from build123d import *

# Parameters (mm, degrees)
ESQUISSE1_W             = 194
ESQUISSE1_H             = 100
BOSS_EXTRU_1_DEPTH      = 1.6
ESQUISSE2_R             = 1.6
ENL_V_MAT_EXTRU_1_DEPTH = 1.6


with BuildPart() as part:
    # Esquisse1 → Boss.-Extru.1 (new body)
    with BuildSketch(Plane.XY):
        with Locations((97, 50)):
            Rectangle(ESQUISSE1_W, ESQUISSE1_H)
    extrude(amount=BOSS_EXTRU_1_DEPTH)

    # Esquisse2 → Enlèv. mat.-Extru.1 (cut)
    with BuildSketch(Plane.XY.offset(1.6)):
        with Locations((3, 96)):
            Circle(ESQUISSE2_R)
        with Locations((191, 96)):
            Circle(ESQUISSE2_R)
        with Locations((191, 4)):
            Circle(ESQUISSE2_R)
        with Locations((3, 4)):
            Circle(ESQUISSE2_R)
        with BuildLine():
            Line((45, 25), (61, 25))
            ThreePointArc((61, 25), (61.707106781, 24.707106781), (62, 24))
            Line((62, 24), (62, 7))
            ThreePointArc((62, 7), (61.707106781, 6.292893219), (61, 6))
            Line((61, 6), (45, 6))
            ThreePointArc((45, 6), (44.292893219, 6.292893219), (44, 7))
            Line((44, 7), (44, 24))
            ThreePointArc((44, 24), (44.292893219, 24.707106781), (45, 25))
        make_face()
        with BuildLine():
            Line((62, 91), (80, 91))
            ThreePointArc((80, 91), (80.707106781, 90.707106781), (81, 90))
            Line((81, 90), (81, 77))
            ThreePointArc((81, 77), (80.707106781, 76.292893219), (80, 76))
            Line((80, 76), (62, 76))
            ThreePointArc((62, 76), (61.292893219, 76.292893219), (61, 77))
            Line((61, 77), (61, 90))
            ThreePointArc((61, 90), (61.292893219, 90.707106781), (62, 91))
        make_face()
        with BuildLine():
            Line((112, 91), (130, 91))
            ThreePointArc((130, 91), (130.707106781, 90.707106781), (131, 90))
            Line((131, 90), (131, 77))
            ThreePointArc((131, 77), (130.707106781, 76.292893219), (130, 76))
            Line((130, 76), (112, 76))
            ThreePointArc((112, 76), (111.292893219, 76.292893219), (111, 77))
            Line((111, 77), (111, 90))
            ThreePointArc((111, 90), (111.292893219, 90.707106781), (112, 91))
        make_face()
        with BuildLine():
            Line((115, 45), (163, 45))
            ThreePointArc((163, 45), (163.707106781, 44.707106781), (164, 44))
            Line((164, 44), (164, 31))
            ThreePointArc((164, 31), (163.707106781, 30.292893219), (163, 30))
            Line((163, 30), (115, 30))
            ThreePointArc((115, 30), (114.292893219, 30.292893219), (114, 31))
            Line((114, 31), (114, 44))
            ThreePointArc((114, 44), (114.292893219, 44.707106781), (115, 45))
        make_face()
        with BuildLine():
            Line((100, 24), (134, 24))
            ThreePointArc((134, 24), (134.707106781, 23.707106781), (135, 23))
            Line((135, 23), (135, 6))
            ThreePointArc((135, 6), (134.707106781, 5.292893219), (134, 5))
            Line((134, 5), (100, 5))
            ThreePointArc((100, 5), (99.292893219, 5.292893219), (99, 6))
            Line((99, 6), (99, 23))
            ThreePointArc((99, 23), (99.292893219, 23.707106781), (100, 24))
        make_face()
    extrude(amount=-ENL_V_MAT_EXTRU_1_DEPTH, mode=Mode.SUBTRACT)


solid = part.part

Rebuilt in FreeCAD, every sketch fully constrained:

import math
import FreeCAD as App
import Part
import Sketcher

V = App.Vector

doc = App.newDocument("Part")
body = doc.addObject("PartDesign::Body", "Body")

sketch1 = doc.addObject("Sketcher::SketchObject", "Sketch")
body.addObject(sketch1)
sketch1.AttachmentSupport = (doc.XY_Plane, [""])
sketch1.MapMode = "FlatFace"
sketch1.addGeometry(Part.LineSegment(V(0, 100, 0), V(0, 0, 0)), False)
sketch1.addGeometry(Part.LineSegment(V(0, 0, 0), V(194, 0, 0)), False)
sketch1.addGeometry(Part.LineSegment(V(194, 0, 0), V(194, 100, 0)), False)
sketch1.addGeometry(Part.LineSegment(V(194, 100, 0), V(0, 100, 0)), False)
sketch1.addConstraint(Sketcher.Constraint("Coincident", 0, 2, 1, 1))
sketch1.addConstraint(Sketcher.Constraint("Coincident", 1, 2, 2, 1))
sketch1.addConstraint(Sketcher.Constraint("Coincident", 2, 2, 3, 1))
sketch1.addConstraint(Sketcher.Constraint("Coincident", 3, 2, 0, 1))
sketch1.addConstraint(Sketcher.Constraint("Vertical", 0))
sketch1.addConstraint(Sketcher.Constraint("Horizontal", 1))
sketch1.addConstraint(Sketcher.Constraint("Vertical", 2))
sketch1.addConstraint(Sketcher.Constraint("Horizontal", 3))
sketch1.addConstraint(Sketcher.Constraint("Coincident", 0, 2, -1, 1))
sketch1.addConstraint(Sketcher.Constraint("DistanceX", 1, 1, 1, 2, 194.0))
sketch1.addConstraint(Sketcher.Constraint("DistanceY", 0, 2, 0, 1, 100.0))
pad1 = doc.addObject("PartDesign::Pad", "Pad")
body.addObject(pad1)
pad1.Profile = sketch1
pad1.Length = 1.6

sketch2 = doc.addObject("Sketcher::SketchObject", "Sketch001")
body.addObject(sketch2)
sketch2.AttachmentSupport = (doc.XY_Plane, [""])
sketch2.MapMode = "FlatFace"
sketch2.AttachmentOffset = App.Placement(V(0, 0, 1.6), App.Rotation())
sketch2.addGeometry(Part.Circle(V(3, 96, 0), V(0, 0, 1), 1.6), False)
sketch2.addGeometry(Part.Circle(V(191, 96, 0), V(0, 0, 1), 1.6), False)
sketch2.addGeometry(Part.Circle(V(191, 4, 0), V(0, 0, 1), 1.6), False)
sketch2.addGeometry(Part.Circle(V(3, 4, 0), V(0, 0, 1), 1.6), False)
sketch2.addGeometry(Part.LineSegment(V(61, 25, 0), V(45, 25, 0)), False)
sketch2.addGeometry(Part.ArcOfCircle(Part.Circle(V(45, 24, 0), V(0, 0, 1), 1), math.radians(90), math.radians(180)), False)
sketch2.addGeometry(Part.LineSegment(V(44, 24, 0), V(44, 7, 0)), False)
sketch2.addGeometry(Part.ArcOfCircle(Part.Circle(V(45, 7, 0), V(0, 0, 1), 1), math.radians(-180), math.radians(-90)), False)
sketch2.addGeometry(Part.LineSegment(V(45, 6, 0), V(61, 6, 0)), False)
sketch2.addGeometry(Part.ArcOfCircle(Part.Circle(V(61, 7, 0), V(0, 0, 1), 1), math.radians(-90), math.radians(0)), False)
sketch2.addGeometry(Part.LineSegment(V(62, 7, 0), V(62, 24, 0)), False)
sketch2.addGeometry(Part.ArcOfCircle(Part.Circle(V(61, 24, 0), V(0, 0, 1), 1), math.radians(0), math.radians(90)), False)
sketch2.addGeometry(Part.LineSegment(V(80, 91, 0), V(62, 91, 0)), False)
sketch2.addGeometry(Part.ArcOfCircle(Part.Circle(V(62, 90, 0), V(0, 0, 1), 1), math.radians(90), math.radians(180)), False)
sketch2.addGeometry(Part.LineSegment(V(61, 90, 0), V(61, 77, 0)), False)
sketch2.addGeometry(Part.ArcOfCircle(Part.Circle(V(62, 77, 0), V(0, 0, 1), 1), math.radians(-180), math.radians(-90)), False)
sketch2.addGeometry(Part.LineSegment(V(62, 76, 0), V(80, 76, 0)), False)
sketch2.addGeometry(Part.ArcOfCircle(Part.Circle(V(80, 77, 0), V(0, 0, 1), 1), math.radians(-90), math.radians(0)), False)
sketch2.addGeometry(Part.LineSegment(V(81, 77, 0), V(81, 90, 0)), False)
sketch2.addGeometry(Part.ArcOfCircle(Part.Circle(V(80, 90, 0), V(0, 0, 1), 1), math.radians(0), math.radians(90)), False)
sketch2.addGeometry(Part.LineSegment(V(130, 91, 0), V(112, 91, 0)), False)
sketch2.addGeometry(Part.ArcOfCircle(Part.Circle(V(112, 90, 0), V(0, 0, 1), 1), math.radians(90), math.radians(180)), False)
sketch2.addGeometry(Part.LineSegment(V(111, 90, 0), V(111, 77, 0)), False)
sketch2.addGeometry(Part.ArcOfCircle(Part.Circle(V(112, 77, 0), V(0, 0, 1), 1), math.radians(-180), math.radians(-90)), False)
sketch2.addGeometry(Part.LineSegment(V(112, 76, 0), V(130, 76, 0)), False)
sketch2.addGeometry(Part.ArcOfCircle(Part.Circle(V(130, 77, 0), V(0, 0, 1), 1), math.radians(-90), math.radians(0)), False)
sketch2.addGeometry(Part.LineSegment(V(131, 77, 0), V(131, 90, 0)), False)
sketch2.addGeometry(Part.ArcOfCircle(Part.Circle(V(130, 90, 0), V(0, 0, 1), 1), math.radians(0), math.radians(90)), False)
sketch2.addGeometry(Part.LineSegment(V(163, 45, 0), V(115, 45, 0)), False)
sketch2.addGeometry(Part.ArcOfCircle(Part.Circle(V(115, 44, 0), V(0, 0, 1), 1), math.radians(90), math.radians(180)), False)
sketch2.addGeometry(Part.LineSegment(V(114, 44, 0), V(114, 31, 0)), False)
sketch2.addGeometry(Part.ArcOfCircle(Part.Circle(V(115, 31, 0), V(0, 0, 1), 1), math.radians(-180), math.radians(-90)), False)
sketch2.addGeometry(Part.LineSegment(V(115, 30, 0), V(163, 30, 0)), False)
sketch2.addGeometry(Part.ArcOfCircle(Part.Circle(V(163, 31, 0), V(0, 0, 1), 1), math.radians(-90), math.radians(0)), False)
sketch2.addGeometry(Part.LineSegment(V(164, 31, 0), V(164, 44, 0)), False)
sketch2.addGeometry(Part.ArcOfCircle(Part.Circle(V(163, 44, 0), V(0, 0, 1), 1), math.radians(0), math.radians(90)), False)
sketch2.addGeometry(Part.LineSegment(V(134, 24, 0), V(100, 24, 0)), False)
sketch2.addGeometry(Part.ArcOfCircle(Part.Circle(V(100, 23, 0), V(0, 0, 1), 1), math.radians(90), math.radians(180)), False)
sketch2.addGeometry(Part.LineSegment(V(99, 23, 0), V(99, 6, 0)), False)
sketch2.addGeometry(Part.ArcOfCircle(Part.Circle(V(100, 6, 0), V(0, 0, 1), 1), math.radians(-180), math.radians(-90)), False)
sketch2.addGeometry(Part.LineSegment(V(100, 5, 0), V(134, 5, 0)), False)
sketch2.addGeometry(Part.ArcOfCircle(Part.Circle(V(134, 6, 0), V(0, 0, 1), 1), math.radians(-90), math.radians(0)), False)
sketch2.addGeometry(Part.LineSegment(V(135, 6, 0), V(135, 23, 0)), False)
sketch2.addGeometry(Part.ArcOfCircle(Part.Circle(V(134, 23, 0), V(0, 0, 1), 1), math.radians(0), math.radians(90)), False)
sketch2.addConstraint(Sketcher.Constraint("Tangent", 4, 2, 5, 1))
sketch2.addConstraint(Sketcher.Constraint("Tangent", 5, 2, 6, 1))
sketch2.addConstraint(Sketcher.Constraint("Tangent", 6, 2, 7, 1))
sketch2.addConstraint(Sketcher.Constraint("Tangent", 7, 2, 8, 1))
sketch2.addConstraint(Sketcher.Constraint("Tangent", 8, 2, 9, 1))
sketch2.addConstraint(Sketcher.Constraint("Tangent", 9, 2, 10, 1))
sketch2.addConstraint(Sketcher.Constraint("Tangent", 10, 2, 11, 1))
sketch2.addConstraint(Sketcher.Constraint("Tangent", 11, 2, 4, 1))
sketch2.addConstraint(Sketcher.Constraint("Tangent", 12, 2, 13, 1))
sketch2.addConstraint(Sketcher.Constraint("Tangent", 13, 2, 14, 1))
sketch2.addConstraint(Sketcher.Constraint("Tangent", 14, 2, 15, 1))
sketch2.addConstraint(Sketcher.Constraint("Tangent", 15, 2, 16, 1))
sketch2.addConstraint(Sketcher.Constraint("Tangent", 16, 2, 17, 1))
sketch2.addConstraint(Sketcher.Constraint("Tangent", 17, 2, 18, 1))
sketch2.addConstraint(Sketcher.Constraint("Tangent", 18, 2, 19, 1))
sketch2.addConstraint(Sketcher.Constraint("Tangent", 19, 2, 12, 1))
sketch2.addConstraint(Sketcher.Constraint("Tangent", 20, 2, 21, 1))
sketch2.addConstraint(Sketcher.Constraint("Tangent", 21, 2, 22, 1))
sketch2.addConstraint(Sketcher.Constraint("Tangent", 22, 2, 23, 1))
sketch2.addConstraint(Sketcher.Constraint("Tangent", 23, 2, 24, 1))
sketch2.addConstraint(Sketcher.Constraint("Tangent", 24, 2, 25, 1))
sketch2.addConstraint(Sketcher.Constraint("Tangent", 25, 2, 26, 1))
sketch2.addConstraint(Sketcher.Constraint("Tangent", 26, 2, 27, 1))
sketch2.addConstraint(Sketcher.Constraint("Tangent", 27, 2, 20, 1))
sketch2.addConstraint(Sketcher.Constraint("Tangent", 28, 2, 29, 1))
sketch2.addConstraint(Sketcher.Constraint("Tangent", 29, 2, 30, 1))
sketch2.addConstraint(Sketcher.Constraint("Tangent", 30, 2, 31, 1))
sketch2.addConstraint(Sketcher.Constraint("Tangent", 31, 2, 32, 1))
sketch2.addConstraint(Sketcher.Constraint("Tangent", 32, 2, 33, 1))
sketch2.addConstraint(Sketcher.Constraint("Tangent", 33, 2, 34, 1))
sketch2.addConstraint(Sketcher.Constraint("Tangent", 34, 2, 35, 1))
sketch2.addConstraint(Sketcher.Constraint("Tangent", 35, 2, 28, 1))
sketch2.addConstraint(Sketcher.Constraint("Tangent", 36, 2, 37, 1))
sketch2.addConstraint(Sketcher.Constraint("Tangent", 37, 2, 38, 1))
sketch2.addConstraint(Sketcher.Constraint("Tangent", 38, 2, 39, 1))
sketch2.addConstraint(Sketcher.Constraint("Tangent", 39, 2, 40, 1))
sketch2.addConstraint(Sketcher.Constraint("Tangent", 40, 2, 41, 1))
sketch2.addConstraint(Sketcher.Constraint("Tangent", 41, 2, 42, 1))
sketch2.addConstraint(Sketcher.Constraint("Tangent", 42, 2, 43, 1))
sketch2.addConstraint(Sketcher.Constraint("Tangent", 43, 2, 36, 1))
sketch2.addConstraint(Sketcher.Constraint("Horizontal", 4))
sketch2.addConstraint(Sketcher.Constraint("Vertical", 6))
sketch2.addConstraint(Sketcher.Constraint("Horizontal", 8))
sketch2.addConstraint(Sketcher.Constraint("Vertical", 10))
sketch2.addConstraint(Sketcher.Constraint("Horizontal", 12))
sketch2.addConstraint(Sketcher.Constraint("Vertical", 14))
sketch2.addConstraint(Sketcher.Constraint("Horizontal", 16))
sketch2.addConstraint(Sketcher.Constraint("Vertical", 18))
sketch2.addConstraint(Sketcher.Constraint("Horizontal", 20))
sketch2.addConstraint(Sketcher.Constraint("Vertical", 22))
sketch2.addConstraint(Sketcher.Constraint("Horizontal", 24))
sketch2.addConstraint(Sketcher.Constraint("Vertical", 26))
sketch2.addConstraint(Sketcher.Constraint("Horizontal", 28))
sketch2.addConstraint(Sketcher.Constraint("Vertical", 30))
sketch2.addConstraint(Sketcher.Constraint("Horizontal", 32))
sketch2.addConstraint(Sketcher.Constraint("Vertical", 34))
sketch2.addConstraint(Sketcher.Constraint("Horizontal", 36))
sketch2.addConstraint(Sketcher.Constraint("Vertical", 38))
sketch2.addConstraint(Sketcher.Constraint("Horizontal", 40))
sketch2.addConstraint(Sketcher.Constraint("Vertical", 42))
sketch2.addConstraint(Sketcher.Constraint("Equal", 0, 1))
sketch2.addConstraint(Sketcher.Constraint("Equal", 1, 2))
sketch2.addConstraint(Sketcher.Constraint("Equal", 2, 3))
sketch2.addConstraint(Sketcher.Constraint("Equal", 5, 7))
sketch2.addConstraint(Sketcher.Constraint("Equal", 7, 9))
sketch2.addConstraint(Sketcher.Constraint("Equal", 9, 11))
sketch2.addConstraint(Sketcher.Constraint("Equal", 11, 13))
sketch2.addConstraint(Sketcher.Constraint("Equal", 13, 15))
sketch2.addConstraint(Sketcher.Constraint("Equal", 15, 17))
sketch2.addConstraint(Sketcher.Constraint("Equal", 17, 19))
sketch2.addConstraint(Sketcher.Constraint("Equal", 19, 21))
sketch2.addConstraint(Sketcher.Constraint("Equal", 21, 23))
sketch2.addConstraint(Sketcher.Constraint("Equal", 23, 25))
sketch2.addConstraint(Sketcher.Constraint("Equal", 25, 27))
sketch2.addConstraint(Sketcher.Constraint("Equal", 27, 29))
sketch2.addConstraint(Sketcher.Constraint("Equal", 29, 31))
sketch2.addConstraint(Sketcher.Constraint("Equal", 31, 33))
sketch2.addConstraint(Sketcher.Constraint("Equal", 33, 35))
sketch2.addConstraint(Sketcher.Constraint("Equal", 35, 37))
sketch2.addConstraint(Sketcher.Constraint("Equal", 37, 39))
sketch2.addConstraint(Sketcher.Constraint("Equal", 39, 41))
sketch2.addConstraint(Sketcher.Constraint("Equal", 41, 43))
sketch2.addConstraint(Sketcher.Constraint("Horizontal", 0, 3, 1, 3))
sketch2.addConstraint(Sketcher.Constraint("Horizontal", 2, 3, 3, 3))
sketch2.addConstraint(Sketcher.Constraint("Horizontal", 19, 3, 21, 3))
sketch2.addConstraint(Sketcher.Constraint("Horizontal", 17, 3, 23, 3))
sketch2.addConstraint(Sketcher.Constraint("Horizontal", 41, 3, 7, 2))
sketch2.addConstraint(Sketcher.Constraint("Horizontal", 10, 2, 36, 2))
sketch2.addConstraint(Sketcher.Constraint("Vertical", 1, 3, 2, 3))
sketch2.addConstraint(Sketcher.Constraint("Vertical", 0, 3, 3, 3))
sketch2.addConstraint(Sketcher.Constraint("Vertical", 15, 3, 9, 2))
sketch2.addConstraint(Sketcher.Constraint("Equal", 16, 20))
sketch2.addConstraint(Sketcher.Constraint("Equal", 26, 30))
sketch2.addConstraint(Sketcher.Constraint("Radius", 5, 1.0))
sketch2.addConstraint(Sketcher.Constraint("Diameter", 0, 3.2))
sketch2.addConstraint(Sketcher.Constraint("DistanceX", 4, 2, 4, 1, 16.0))
sketch2.addConstraint(Sketcher.Constraint("DistanceX", 12, 2, 12, 1, 18.0))
sketch2.addConstraint(Sketcher.Constraint("DistanceX", 28, 2, 28, 1, 48.0))
sketch2.addConstraint(Sketcher.Constraint("DistanceX", 36, 2, 36, 1, 34.0))
sketch2.addConstraint(Sketcher.Constraint("DistanceY", 6, 2, 6, 1, 17.0))
sketch2.addConstraint(Sketcher.Constraint("DistanceY", 14, 2, 14, 1, 13.0))
sketch2.addConstraint(Sketcher.Constraint("DistanceX", -1, 1, 0, 3, 3.0))
sketch2.addConstraint(Sketcher.Constraint("DistanceY", -1, 1, 0, 3, 96.0))
sketch2.addConstraint(Sketcher.Constraint("DistanceX", -1, 1, 1, 3, 191.0))
sketch2.addConstraint(Sketcher.Constraint("DistanceY", -1, 1, 2, 3, 4.0))
sketch2.addConstraint(Sketcher.Constraint("DistanceX", -1, 1, 5, 3, 45.0))
sketch2.addConstraint(Sketcher.Constraint("DistanceY", -1, 1, 5, 3, 24.0))
sketch2.addConstraint(Sketcher.Constraint("DistanceY", -1, 1, 13, 3, 90.0))
sketch2.addConstraint(Sketcher.Constraint("DistanceX", -1, 1, 21, 3, 112.0))
sketch2.addConstraint(Sketcher.Constraint("DistanceX", -1, 1, 29, 3, 115.0))
sketch2.addConstraint(Sketcher.Constraint("DistanceY", -1, 1, 29, 3, 44.0))
sketch2.addConstraint(Sketcher.Constraint("DistanceX", -1, 1, 37, 3, 100.0))
pocket1 = doc.addObject("PartDesign::Pocket", "Pocket")
body.addObject(pocket1)
pocket1.Profile = sketch2
pocket1.Length = 1.6

doc.recompute()
